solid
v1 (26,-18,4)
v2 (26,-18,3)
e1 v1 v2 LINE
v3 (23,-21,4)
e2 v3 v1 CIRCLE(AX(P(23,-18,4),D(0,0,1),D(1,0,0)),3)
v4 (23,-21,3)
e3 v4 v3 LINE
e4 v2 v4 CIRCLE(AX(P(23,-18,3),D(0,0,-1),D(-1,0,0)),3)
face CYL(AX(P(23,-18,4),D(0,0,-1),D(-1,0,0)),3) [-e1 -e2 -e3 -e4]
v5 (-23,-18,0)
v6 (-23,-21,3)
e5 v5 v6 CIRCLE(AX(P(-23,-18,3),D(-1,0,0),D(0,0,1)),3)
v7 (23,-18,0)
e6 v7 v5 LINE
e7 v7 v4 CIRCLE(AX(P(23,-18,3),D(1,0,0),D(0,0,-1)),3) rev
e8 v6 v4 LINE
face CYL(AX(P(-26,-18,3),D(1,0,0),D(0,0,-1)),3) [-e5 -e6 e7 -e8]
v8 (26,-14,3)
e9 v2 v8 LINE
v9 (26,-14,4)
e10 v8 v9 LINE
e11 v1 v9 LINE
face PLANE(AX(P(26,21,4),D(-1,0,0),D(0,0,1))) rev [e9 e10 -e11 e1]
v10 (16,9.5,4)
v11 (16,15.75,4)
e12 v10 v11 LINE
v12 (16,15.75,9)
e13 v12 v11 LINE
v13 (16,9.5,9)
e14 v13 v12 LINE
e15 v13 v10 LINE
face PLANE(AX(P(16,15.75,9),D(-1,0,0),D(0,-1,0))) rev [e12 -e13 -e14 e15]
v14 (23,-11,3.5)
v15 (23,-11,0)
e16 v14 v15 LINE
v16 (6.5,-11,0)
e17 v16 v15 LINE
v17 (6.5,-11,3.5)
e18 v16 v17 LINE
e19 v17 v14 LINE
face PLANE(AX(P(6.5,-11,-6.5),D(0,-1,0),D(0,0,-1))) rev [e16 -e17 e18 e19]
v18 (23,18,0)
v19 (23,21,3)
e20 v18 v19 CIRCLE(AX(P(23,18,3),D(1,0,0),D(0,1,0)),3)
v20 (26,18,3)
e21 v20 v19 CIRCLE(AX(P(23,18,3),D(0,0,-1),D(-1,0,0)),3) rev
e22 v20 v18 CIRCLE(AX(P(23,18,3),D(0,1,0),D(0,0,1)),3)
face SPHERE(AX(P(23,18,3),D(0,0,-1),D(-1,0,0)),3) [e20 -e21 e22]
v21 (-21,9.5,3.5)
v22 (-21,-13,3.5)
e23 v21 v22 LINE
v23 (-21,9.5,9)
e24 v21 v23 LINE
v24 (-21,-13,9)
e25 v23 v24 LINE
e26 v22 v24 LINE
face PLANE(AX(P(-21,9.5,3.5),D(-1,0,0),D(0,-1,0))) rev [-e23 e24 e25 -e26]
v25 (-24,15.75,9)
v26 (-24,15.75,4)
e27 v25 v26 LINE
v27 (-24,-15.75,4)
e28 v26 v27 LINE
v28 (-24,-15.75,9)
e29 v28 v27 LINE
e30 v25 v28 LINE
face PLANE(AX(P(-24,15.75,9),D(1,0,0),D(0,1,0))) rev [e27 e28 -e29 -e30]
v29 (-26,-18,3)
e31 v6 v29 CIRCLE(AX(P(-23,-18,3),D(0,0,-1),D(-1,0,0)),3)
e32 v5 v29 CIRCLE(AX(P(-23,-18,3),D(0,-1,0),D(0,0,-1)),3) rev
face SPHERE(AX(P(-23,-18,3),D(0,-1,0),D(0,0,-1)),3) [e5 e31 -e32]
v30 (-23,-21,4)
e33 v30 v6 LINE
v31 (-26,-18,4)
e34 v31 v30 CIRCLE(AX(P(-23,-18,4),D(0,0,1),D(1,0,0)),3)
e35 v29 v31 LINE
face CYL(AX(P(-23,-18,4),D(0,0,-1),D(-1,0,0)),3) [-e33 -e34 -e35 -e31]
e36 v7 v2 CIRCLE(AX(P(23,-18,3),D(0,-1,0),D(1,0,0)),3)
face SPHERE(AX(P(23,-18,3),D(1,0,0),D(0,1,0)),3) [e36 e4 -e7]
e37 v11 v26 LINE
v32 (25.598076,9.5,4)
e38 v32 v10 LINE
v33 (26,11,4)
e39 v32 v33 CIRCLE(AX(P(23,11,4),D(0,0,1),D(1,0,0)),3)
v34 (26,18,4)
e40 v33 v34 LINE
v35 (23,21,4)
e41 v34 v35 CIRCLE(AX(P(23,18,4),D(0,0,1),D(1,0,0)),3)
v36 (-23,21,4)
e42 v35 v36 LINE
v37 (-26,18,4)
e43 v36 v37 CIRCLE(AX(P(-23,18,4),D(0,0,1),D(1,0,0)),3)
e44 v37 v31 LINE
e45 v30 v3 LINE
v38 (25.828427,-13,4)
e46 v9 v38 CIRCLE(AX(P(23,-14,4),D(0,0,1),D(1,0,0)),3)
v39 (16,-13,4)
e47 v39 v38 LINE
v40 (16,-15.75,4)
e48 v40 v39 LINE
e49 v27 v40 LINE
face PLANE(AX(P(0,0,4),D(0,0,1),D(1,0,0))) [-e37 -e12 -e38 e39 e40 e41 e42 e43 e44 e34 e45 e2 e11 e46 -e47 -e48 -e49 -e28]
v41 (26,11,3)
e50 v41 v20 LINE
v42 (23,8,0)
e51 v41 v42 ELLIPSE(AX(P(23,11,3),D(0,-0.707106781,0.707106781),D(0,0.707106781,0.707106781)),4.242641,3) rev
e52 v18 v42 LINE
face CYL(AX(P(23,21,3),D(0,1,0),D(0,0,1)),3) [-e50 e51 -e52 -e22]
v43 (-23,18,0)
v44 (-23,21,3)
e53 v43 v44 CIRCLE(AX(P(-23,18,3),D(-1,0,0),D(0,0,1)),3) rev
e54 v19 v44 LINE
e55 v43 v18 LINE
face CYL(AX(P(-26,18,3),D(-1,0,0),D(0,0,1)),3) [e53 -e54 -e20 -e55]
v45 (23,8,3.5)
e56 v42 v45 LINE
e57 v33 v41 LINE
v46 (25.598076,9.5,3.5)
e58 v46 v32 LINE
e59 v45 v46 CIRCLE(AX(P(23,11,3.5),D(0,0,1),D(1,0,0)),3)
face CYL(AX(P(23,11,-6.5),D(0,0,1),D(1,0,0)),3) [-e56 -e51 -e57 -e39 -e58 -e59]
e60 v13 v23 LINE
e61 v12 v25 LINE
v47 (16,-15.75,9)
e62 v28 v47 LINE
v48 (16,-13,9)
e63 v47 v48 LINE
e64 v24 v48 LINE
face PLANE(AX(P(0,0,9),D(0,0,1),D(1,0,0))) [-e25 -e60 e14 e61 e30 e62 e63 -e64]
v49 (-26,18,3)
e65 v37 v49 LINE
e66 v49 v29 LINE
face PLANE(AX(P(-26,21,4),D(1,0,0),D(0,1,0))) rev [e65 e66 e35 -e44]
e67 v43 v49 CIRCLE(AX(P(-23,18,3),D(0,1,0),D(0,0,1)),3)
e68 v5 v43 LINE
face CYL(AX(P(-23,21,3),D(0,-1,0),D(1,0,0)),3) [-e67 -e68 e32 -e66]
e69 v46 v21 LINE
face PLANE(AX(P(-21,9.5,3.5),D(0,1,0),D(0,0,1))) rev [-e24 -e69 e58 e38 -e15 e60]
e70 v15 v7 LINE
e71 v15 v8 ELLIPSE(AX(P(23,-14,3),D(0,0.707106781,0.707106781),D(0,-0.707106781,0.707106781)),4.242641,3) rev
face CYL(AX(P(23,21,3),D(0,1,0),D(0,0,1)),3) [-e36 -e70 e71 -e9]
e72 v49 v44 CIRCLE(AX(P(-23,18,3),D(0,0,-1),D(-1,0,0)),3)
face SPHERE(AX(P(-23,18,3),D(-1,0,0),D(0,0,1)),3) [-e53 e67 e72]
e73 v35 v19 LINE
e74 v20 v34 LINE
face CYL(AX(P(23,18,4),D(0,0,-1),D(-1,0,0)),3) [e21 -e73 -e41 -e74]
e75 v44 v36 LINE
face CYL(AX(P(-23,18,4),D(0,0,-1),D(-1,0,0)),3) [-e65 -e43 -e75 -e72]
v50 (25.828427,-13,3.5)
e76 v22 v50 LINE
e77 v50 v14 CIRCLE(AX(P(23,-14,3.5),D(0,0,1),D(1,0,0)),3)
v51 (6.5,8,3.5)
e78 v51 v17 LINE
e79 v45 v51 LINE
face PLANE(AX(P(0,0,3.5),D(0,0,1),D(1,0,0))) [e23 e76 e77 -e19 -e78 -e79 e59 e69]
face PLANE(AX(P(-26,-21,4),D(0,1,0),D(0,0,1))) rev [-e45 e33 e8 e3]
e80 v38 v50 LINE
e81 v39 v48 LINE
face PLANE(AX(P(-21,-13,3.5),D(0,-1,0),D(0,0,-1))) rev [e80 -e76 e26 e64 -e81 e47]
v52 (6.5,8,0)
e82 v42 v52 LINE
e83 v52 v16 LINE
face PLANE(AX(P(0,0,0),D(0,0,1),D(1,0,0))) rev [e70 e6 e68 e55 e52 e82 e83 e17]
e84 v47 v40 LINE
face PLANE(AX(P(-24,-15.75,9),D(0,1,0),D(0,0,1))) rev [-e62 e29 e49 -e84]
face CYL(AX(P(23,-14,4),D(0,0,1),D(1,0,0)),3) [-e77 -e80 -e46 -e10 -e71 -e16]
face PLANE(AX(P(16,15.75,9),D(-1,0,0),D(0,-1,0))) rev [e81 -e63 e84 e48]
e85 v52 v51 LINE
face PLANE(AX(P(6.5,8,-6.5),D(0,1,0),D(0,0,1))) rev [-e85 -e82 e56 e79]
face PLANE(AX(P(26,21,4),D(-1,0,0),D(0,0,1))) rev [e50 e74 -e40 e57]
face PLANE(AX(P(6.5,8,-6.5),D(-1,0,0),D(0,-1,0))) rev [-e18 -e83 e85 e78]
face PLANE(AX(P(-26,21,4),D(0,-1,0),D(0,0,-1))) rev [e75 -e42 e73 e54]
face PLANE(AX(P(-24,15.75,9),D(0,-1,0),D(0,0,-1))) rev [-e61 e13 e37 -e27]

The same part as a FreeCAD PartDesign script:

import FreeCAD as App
import Part
import Sketcher
from FreeCAD import Vector


def edges_at(feature, points):
    """Names of the edges that pass closest to the given points."""
    edges = feature.Shape.Edges
    near = lambda p: min(range(len(edges)), key=lambda i: edges[i].distToShape(Part.Vertex(*p))[0])
    return sorted({f"Edge{near(p) + 1}" for p in points})

doc = App.newDocument("Part")
body = doc.addObject("PartDesign::Body", "Body")

sketch1 = body.newObject("Sketcher::SketchObject", "Sketch")
sketch1.AttachmentSupport = (doc.getObject("XY_Plane"), [""])
sketch1.MapMode = "FlatFace"
sketch1.addGeometry([
    Part.LineSegment(Vector(-26, 21, 0), Vector(-26, -21, 0)),
    Part.LineSegment(Vector(-26, -21, 0), Vector(26, -21, 0)),
    Part.LineSegment(Vector(26, -21, 0), Vector(26, 21, 0)),
    Part.LineSegment(Vector(26, 21, 0), Vector(-26, 21, 0)),
], False)
sketch1.addConstraint([
    Sketcher.Constraint("Coincident", 0, 2, 1, 1),
    Sketcher.Constraint("Coincident", 1, 2, 2, 1),
    Sketcher.Constraint("Coincident", 2, 2, 3, 1),
    Sketcher.Constraint("Coincident", 3, 2, 0, 1),
    Sketcher.Constraint("Vertical", 0),
    Sketcher.Constraint("Horizontal", 1),
    Sketcher.Constraint("Vertical", 2),
    Sketcher.Constraint("Horizontal", 3),
    Sketcher.Constraint("Symmetric", 0, 2, 2, 2, -1, 1),
    Sketcher.Constraint("DistanceX", 1, 1, 1, 2, 52.0),
    Sketcher.Constraint("DistanceY", 0, 2, 0, 1, 42.0),
])
pad1 = body.newObject("PartDesign::Pad", "Pad")
pad1.Profile = sketch1
pad1.Length = 4

sketch2 = body.newObject("Sketcher::SketchObject", "Sketch001")
sketch2.AttachmentSupport = (doc.getObject("XY_Plane"), [""])
sketch2.MapMode = "FlatFace"
sketch2.AttachmentOffset = App.Placement(Vector(0, 0, 4), App.Rotation())
sketch2.addGeometry([
    Part.LineSegment(Vector(-24, 16, 0), Vector(-24, -16, 0)),
    Part.LineSegment(Vector(-24, -16, 0), Vector(16, -16, 0)),
    Part.LineSegment(Vector(16, -16, 0), Vector(16, 16, 0)),
    Part.LineSegment(Vector(16, 16, 0), Vector(-24, 16, 0)),
], False)
sketch2.addConstraint([
    Sketcher.Constraint("Coincident", 0, 2, 1, 1),
    Sketcher.Constraint("Coincident", 1, 2, 2, 1),
    Sketcher.Constraint("Coincident", 2, 2, 3, 1),
    Sketcher.Constraint("Coincident", 3, 2, 0, 1),
    Sketcher.Constraint("Vertical", 0),
    Sketcher.Constraint("Horizontal", 1),
    Sketcher.Constraint("Vertical", 2),
    Sketcher.Constraint("Horizontal", 3),
    Sketcher.Constraint("DistanceX", 1, 1, 1, 2, 40.0),
    Sketcher.Constraint("DistanceY", 0, 2, 0, 1, 31.5),
    Sketcher.Constraint("DistanceX", 0, 2, -1, 1, 24.0),
    Sketcher.Constraint("DistanceY", 0, 2, -1, 1, 15.75),
])
pad2 = body.newObject("PartDesign::Pad", "Pad001")
pad2.Profile = sketch2
pad2.Length = 5

sketch3 = body.newObject("Sketcher::SketchObject", "Sketch002")
sketch3.AttachmentSupport = (doc.getObject("XY_Plane"), [""])
sketch3.MapMode = "FlatFace"
sketch3.AttachmentOffset = App.Placement(Vector(0, 0, 9), App.Rotation())
sketch3.addGeometry([
    Part.LineSegment(Vector(-21, 10, 0), Vector(-21, -13, 0)),
    Part.LineSegment(Vector(-21, -13, 0), Vector(29, -13, 0)),
    Part.LineSegment(Vector(29, -13, 0), Vector(29, 10, 0)),
    Part.LineSegment(Vector(29, 10, 0), Vector(-21, 10, 0)),
], False)
sketch3.addConstraint([
    Sketcher.Constraint("Coincident", 0, 2, 1, 1),
    Sketcher.Constraint("Coincident", 1, 2, 2, 1),
    Sketcher.Constraint("Coincident", 2, 2, 3, 1),
    Sketcher.Constraint("Coincident", 3, 2, 0, 1),
    Sketcher.Constraint("Vertical", 0),
    Sketcher.Constraint("Horizontal", 1),
    Sketcher.Constraint("Vertical", 2),
    Sketcher.Constraint("Horizontal", 3),
    Sketcher.Constraint("DistanceX", 1, 1, 1, 2, 50.0),
    Sketcher.Constraint("DistanceY", 0, 2, 0, 1, 22.5),
    Sketcher.Constraint("DistanceX", 0, 2, -1, 1, 21.0),
    Sketcher.Constraint("DistanceY", 0, 2, -1, 1, 13.0),
])
pocket1 = body.newObject("PartDesign::Pocket", "Pocket")
pocket1.Profile = sketch3
pocket1.Length = 5.5

sketch4 = body.newObject("Sketcher::SketchObject", "Sketch003")
sketch4.AttachmentSupport = (doc.getObject("XY_Plane"), [""])
sketch4.MapMode = "FlatFace"
sketch4.AttachmentOffset = App.Placement(Vector(0, 0, 3.5), App.Rotation())
sketch4.addGeometry([
    Part.LineSegment(Vector(6, 8, 0), Vector(6, -11, 0)),
    Part.LineSegment(Vector(6, -11, 0), Vector(26, -11, 0)),
    Part.LineSegment(Vector(26, -11, 0), Vector(26, 8, 0)),
    Part.LineSegment(Vector(26, 8, 0), Vector(6, 8, 0)),
], False)
sketch4.addConstraint([
    Sketcher.Constraint("Coincident", 0, 2, 1, 1),
    Sketcher.Constraint("Coincident", 1, 2, 2, 1),
    Sketcher.Constraint("Coincident", 2, 2, 3, 1),
    Sketcher.Constraint("Coincident", 3, 2, 0, 1),
    Sketcher.Constraint("Vertical", 0),
    Sketcher.Constraint("Horizontal", 1),
    Sketcher.Constraint("Vertical", 2),
    Sketcher.Constraint("Horizontal", 3),
    Sketcher.Constraint("DistanceY", 0, 2, 0, 1, 19.0),
    Sketcher.Constraint("DistanceX", 1, 1, 1, 2, 19.5),
    Sketcher.Constraint("DistanceY", 0, 2, -1, 1, 11.0),
    Sketcher.Constraint("DistanceX", -1, 1, 1, 2, 26.0),
])
pocket2 = body.newObject("PartDesign::Pocket", "Pocket001")
pocket2.Profile = sketch4
pocket2.Length = 10
doc.recompute()

fillet = body.newObject("PartDesign::Fillet", "Fillet")
fillet.Base = (pocket2, edges_at(pocket2, [
    (26, -16, 0),
    (26, 14.5, 0),
    (26, 8, 1.75),
    (26, -11, 1.75),
    (26, -21, 2),
    (-26, -21, 2),
    (0, -21, 0),
    (-26, 0, 0),
    (0, 21, 0),
    (-26, 21, 2),
    (26, 21, 2),
]))
fillet.Radius = 3

doc.recompute()
